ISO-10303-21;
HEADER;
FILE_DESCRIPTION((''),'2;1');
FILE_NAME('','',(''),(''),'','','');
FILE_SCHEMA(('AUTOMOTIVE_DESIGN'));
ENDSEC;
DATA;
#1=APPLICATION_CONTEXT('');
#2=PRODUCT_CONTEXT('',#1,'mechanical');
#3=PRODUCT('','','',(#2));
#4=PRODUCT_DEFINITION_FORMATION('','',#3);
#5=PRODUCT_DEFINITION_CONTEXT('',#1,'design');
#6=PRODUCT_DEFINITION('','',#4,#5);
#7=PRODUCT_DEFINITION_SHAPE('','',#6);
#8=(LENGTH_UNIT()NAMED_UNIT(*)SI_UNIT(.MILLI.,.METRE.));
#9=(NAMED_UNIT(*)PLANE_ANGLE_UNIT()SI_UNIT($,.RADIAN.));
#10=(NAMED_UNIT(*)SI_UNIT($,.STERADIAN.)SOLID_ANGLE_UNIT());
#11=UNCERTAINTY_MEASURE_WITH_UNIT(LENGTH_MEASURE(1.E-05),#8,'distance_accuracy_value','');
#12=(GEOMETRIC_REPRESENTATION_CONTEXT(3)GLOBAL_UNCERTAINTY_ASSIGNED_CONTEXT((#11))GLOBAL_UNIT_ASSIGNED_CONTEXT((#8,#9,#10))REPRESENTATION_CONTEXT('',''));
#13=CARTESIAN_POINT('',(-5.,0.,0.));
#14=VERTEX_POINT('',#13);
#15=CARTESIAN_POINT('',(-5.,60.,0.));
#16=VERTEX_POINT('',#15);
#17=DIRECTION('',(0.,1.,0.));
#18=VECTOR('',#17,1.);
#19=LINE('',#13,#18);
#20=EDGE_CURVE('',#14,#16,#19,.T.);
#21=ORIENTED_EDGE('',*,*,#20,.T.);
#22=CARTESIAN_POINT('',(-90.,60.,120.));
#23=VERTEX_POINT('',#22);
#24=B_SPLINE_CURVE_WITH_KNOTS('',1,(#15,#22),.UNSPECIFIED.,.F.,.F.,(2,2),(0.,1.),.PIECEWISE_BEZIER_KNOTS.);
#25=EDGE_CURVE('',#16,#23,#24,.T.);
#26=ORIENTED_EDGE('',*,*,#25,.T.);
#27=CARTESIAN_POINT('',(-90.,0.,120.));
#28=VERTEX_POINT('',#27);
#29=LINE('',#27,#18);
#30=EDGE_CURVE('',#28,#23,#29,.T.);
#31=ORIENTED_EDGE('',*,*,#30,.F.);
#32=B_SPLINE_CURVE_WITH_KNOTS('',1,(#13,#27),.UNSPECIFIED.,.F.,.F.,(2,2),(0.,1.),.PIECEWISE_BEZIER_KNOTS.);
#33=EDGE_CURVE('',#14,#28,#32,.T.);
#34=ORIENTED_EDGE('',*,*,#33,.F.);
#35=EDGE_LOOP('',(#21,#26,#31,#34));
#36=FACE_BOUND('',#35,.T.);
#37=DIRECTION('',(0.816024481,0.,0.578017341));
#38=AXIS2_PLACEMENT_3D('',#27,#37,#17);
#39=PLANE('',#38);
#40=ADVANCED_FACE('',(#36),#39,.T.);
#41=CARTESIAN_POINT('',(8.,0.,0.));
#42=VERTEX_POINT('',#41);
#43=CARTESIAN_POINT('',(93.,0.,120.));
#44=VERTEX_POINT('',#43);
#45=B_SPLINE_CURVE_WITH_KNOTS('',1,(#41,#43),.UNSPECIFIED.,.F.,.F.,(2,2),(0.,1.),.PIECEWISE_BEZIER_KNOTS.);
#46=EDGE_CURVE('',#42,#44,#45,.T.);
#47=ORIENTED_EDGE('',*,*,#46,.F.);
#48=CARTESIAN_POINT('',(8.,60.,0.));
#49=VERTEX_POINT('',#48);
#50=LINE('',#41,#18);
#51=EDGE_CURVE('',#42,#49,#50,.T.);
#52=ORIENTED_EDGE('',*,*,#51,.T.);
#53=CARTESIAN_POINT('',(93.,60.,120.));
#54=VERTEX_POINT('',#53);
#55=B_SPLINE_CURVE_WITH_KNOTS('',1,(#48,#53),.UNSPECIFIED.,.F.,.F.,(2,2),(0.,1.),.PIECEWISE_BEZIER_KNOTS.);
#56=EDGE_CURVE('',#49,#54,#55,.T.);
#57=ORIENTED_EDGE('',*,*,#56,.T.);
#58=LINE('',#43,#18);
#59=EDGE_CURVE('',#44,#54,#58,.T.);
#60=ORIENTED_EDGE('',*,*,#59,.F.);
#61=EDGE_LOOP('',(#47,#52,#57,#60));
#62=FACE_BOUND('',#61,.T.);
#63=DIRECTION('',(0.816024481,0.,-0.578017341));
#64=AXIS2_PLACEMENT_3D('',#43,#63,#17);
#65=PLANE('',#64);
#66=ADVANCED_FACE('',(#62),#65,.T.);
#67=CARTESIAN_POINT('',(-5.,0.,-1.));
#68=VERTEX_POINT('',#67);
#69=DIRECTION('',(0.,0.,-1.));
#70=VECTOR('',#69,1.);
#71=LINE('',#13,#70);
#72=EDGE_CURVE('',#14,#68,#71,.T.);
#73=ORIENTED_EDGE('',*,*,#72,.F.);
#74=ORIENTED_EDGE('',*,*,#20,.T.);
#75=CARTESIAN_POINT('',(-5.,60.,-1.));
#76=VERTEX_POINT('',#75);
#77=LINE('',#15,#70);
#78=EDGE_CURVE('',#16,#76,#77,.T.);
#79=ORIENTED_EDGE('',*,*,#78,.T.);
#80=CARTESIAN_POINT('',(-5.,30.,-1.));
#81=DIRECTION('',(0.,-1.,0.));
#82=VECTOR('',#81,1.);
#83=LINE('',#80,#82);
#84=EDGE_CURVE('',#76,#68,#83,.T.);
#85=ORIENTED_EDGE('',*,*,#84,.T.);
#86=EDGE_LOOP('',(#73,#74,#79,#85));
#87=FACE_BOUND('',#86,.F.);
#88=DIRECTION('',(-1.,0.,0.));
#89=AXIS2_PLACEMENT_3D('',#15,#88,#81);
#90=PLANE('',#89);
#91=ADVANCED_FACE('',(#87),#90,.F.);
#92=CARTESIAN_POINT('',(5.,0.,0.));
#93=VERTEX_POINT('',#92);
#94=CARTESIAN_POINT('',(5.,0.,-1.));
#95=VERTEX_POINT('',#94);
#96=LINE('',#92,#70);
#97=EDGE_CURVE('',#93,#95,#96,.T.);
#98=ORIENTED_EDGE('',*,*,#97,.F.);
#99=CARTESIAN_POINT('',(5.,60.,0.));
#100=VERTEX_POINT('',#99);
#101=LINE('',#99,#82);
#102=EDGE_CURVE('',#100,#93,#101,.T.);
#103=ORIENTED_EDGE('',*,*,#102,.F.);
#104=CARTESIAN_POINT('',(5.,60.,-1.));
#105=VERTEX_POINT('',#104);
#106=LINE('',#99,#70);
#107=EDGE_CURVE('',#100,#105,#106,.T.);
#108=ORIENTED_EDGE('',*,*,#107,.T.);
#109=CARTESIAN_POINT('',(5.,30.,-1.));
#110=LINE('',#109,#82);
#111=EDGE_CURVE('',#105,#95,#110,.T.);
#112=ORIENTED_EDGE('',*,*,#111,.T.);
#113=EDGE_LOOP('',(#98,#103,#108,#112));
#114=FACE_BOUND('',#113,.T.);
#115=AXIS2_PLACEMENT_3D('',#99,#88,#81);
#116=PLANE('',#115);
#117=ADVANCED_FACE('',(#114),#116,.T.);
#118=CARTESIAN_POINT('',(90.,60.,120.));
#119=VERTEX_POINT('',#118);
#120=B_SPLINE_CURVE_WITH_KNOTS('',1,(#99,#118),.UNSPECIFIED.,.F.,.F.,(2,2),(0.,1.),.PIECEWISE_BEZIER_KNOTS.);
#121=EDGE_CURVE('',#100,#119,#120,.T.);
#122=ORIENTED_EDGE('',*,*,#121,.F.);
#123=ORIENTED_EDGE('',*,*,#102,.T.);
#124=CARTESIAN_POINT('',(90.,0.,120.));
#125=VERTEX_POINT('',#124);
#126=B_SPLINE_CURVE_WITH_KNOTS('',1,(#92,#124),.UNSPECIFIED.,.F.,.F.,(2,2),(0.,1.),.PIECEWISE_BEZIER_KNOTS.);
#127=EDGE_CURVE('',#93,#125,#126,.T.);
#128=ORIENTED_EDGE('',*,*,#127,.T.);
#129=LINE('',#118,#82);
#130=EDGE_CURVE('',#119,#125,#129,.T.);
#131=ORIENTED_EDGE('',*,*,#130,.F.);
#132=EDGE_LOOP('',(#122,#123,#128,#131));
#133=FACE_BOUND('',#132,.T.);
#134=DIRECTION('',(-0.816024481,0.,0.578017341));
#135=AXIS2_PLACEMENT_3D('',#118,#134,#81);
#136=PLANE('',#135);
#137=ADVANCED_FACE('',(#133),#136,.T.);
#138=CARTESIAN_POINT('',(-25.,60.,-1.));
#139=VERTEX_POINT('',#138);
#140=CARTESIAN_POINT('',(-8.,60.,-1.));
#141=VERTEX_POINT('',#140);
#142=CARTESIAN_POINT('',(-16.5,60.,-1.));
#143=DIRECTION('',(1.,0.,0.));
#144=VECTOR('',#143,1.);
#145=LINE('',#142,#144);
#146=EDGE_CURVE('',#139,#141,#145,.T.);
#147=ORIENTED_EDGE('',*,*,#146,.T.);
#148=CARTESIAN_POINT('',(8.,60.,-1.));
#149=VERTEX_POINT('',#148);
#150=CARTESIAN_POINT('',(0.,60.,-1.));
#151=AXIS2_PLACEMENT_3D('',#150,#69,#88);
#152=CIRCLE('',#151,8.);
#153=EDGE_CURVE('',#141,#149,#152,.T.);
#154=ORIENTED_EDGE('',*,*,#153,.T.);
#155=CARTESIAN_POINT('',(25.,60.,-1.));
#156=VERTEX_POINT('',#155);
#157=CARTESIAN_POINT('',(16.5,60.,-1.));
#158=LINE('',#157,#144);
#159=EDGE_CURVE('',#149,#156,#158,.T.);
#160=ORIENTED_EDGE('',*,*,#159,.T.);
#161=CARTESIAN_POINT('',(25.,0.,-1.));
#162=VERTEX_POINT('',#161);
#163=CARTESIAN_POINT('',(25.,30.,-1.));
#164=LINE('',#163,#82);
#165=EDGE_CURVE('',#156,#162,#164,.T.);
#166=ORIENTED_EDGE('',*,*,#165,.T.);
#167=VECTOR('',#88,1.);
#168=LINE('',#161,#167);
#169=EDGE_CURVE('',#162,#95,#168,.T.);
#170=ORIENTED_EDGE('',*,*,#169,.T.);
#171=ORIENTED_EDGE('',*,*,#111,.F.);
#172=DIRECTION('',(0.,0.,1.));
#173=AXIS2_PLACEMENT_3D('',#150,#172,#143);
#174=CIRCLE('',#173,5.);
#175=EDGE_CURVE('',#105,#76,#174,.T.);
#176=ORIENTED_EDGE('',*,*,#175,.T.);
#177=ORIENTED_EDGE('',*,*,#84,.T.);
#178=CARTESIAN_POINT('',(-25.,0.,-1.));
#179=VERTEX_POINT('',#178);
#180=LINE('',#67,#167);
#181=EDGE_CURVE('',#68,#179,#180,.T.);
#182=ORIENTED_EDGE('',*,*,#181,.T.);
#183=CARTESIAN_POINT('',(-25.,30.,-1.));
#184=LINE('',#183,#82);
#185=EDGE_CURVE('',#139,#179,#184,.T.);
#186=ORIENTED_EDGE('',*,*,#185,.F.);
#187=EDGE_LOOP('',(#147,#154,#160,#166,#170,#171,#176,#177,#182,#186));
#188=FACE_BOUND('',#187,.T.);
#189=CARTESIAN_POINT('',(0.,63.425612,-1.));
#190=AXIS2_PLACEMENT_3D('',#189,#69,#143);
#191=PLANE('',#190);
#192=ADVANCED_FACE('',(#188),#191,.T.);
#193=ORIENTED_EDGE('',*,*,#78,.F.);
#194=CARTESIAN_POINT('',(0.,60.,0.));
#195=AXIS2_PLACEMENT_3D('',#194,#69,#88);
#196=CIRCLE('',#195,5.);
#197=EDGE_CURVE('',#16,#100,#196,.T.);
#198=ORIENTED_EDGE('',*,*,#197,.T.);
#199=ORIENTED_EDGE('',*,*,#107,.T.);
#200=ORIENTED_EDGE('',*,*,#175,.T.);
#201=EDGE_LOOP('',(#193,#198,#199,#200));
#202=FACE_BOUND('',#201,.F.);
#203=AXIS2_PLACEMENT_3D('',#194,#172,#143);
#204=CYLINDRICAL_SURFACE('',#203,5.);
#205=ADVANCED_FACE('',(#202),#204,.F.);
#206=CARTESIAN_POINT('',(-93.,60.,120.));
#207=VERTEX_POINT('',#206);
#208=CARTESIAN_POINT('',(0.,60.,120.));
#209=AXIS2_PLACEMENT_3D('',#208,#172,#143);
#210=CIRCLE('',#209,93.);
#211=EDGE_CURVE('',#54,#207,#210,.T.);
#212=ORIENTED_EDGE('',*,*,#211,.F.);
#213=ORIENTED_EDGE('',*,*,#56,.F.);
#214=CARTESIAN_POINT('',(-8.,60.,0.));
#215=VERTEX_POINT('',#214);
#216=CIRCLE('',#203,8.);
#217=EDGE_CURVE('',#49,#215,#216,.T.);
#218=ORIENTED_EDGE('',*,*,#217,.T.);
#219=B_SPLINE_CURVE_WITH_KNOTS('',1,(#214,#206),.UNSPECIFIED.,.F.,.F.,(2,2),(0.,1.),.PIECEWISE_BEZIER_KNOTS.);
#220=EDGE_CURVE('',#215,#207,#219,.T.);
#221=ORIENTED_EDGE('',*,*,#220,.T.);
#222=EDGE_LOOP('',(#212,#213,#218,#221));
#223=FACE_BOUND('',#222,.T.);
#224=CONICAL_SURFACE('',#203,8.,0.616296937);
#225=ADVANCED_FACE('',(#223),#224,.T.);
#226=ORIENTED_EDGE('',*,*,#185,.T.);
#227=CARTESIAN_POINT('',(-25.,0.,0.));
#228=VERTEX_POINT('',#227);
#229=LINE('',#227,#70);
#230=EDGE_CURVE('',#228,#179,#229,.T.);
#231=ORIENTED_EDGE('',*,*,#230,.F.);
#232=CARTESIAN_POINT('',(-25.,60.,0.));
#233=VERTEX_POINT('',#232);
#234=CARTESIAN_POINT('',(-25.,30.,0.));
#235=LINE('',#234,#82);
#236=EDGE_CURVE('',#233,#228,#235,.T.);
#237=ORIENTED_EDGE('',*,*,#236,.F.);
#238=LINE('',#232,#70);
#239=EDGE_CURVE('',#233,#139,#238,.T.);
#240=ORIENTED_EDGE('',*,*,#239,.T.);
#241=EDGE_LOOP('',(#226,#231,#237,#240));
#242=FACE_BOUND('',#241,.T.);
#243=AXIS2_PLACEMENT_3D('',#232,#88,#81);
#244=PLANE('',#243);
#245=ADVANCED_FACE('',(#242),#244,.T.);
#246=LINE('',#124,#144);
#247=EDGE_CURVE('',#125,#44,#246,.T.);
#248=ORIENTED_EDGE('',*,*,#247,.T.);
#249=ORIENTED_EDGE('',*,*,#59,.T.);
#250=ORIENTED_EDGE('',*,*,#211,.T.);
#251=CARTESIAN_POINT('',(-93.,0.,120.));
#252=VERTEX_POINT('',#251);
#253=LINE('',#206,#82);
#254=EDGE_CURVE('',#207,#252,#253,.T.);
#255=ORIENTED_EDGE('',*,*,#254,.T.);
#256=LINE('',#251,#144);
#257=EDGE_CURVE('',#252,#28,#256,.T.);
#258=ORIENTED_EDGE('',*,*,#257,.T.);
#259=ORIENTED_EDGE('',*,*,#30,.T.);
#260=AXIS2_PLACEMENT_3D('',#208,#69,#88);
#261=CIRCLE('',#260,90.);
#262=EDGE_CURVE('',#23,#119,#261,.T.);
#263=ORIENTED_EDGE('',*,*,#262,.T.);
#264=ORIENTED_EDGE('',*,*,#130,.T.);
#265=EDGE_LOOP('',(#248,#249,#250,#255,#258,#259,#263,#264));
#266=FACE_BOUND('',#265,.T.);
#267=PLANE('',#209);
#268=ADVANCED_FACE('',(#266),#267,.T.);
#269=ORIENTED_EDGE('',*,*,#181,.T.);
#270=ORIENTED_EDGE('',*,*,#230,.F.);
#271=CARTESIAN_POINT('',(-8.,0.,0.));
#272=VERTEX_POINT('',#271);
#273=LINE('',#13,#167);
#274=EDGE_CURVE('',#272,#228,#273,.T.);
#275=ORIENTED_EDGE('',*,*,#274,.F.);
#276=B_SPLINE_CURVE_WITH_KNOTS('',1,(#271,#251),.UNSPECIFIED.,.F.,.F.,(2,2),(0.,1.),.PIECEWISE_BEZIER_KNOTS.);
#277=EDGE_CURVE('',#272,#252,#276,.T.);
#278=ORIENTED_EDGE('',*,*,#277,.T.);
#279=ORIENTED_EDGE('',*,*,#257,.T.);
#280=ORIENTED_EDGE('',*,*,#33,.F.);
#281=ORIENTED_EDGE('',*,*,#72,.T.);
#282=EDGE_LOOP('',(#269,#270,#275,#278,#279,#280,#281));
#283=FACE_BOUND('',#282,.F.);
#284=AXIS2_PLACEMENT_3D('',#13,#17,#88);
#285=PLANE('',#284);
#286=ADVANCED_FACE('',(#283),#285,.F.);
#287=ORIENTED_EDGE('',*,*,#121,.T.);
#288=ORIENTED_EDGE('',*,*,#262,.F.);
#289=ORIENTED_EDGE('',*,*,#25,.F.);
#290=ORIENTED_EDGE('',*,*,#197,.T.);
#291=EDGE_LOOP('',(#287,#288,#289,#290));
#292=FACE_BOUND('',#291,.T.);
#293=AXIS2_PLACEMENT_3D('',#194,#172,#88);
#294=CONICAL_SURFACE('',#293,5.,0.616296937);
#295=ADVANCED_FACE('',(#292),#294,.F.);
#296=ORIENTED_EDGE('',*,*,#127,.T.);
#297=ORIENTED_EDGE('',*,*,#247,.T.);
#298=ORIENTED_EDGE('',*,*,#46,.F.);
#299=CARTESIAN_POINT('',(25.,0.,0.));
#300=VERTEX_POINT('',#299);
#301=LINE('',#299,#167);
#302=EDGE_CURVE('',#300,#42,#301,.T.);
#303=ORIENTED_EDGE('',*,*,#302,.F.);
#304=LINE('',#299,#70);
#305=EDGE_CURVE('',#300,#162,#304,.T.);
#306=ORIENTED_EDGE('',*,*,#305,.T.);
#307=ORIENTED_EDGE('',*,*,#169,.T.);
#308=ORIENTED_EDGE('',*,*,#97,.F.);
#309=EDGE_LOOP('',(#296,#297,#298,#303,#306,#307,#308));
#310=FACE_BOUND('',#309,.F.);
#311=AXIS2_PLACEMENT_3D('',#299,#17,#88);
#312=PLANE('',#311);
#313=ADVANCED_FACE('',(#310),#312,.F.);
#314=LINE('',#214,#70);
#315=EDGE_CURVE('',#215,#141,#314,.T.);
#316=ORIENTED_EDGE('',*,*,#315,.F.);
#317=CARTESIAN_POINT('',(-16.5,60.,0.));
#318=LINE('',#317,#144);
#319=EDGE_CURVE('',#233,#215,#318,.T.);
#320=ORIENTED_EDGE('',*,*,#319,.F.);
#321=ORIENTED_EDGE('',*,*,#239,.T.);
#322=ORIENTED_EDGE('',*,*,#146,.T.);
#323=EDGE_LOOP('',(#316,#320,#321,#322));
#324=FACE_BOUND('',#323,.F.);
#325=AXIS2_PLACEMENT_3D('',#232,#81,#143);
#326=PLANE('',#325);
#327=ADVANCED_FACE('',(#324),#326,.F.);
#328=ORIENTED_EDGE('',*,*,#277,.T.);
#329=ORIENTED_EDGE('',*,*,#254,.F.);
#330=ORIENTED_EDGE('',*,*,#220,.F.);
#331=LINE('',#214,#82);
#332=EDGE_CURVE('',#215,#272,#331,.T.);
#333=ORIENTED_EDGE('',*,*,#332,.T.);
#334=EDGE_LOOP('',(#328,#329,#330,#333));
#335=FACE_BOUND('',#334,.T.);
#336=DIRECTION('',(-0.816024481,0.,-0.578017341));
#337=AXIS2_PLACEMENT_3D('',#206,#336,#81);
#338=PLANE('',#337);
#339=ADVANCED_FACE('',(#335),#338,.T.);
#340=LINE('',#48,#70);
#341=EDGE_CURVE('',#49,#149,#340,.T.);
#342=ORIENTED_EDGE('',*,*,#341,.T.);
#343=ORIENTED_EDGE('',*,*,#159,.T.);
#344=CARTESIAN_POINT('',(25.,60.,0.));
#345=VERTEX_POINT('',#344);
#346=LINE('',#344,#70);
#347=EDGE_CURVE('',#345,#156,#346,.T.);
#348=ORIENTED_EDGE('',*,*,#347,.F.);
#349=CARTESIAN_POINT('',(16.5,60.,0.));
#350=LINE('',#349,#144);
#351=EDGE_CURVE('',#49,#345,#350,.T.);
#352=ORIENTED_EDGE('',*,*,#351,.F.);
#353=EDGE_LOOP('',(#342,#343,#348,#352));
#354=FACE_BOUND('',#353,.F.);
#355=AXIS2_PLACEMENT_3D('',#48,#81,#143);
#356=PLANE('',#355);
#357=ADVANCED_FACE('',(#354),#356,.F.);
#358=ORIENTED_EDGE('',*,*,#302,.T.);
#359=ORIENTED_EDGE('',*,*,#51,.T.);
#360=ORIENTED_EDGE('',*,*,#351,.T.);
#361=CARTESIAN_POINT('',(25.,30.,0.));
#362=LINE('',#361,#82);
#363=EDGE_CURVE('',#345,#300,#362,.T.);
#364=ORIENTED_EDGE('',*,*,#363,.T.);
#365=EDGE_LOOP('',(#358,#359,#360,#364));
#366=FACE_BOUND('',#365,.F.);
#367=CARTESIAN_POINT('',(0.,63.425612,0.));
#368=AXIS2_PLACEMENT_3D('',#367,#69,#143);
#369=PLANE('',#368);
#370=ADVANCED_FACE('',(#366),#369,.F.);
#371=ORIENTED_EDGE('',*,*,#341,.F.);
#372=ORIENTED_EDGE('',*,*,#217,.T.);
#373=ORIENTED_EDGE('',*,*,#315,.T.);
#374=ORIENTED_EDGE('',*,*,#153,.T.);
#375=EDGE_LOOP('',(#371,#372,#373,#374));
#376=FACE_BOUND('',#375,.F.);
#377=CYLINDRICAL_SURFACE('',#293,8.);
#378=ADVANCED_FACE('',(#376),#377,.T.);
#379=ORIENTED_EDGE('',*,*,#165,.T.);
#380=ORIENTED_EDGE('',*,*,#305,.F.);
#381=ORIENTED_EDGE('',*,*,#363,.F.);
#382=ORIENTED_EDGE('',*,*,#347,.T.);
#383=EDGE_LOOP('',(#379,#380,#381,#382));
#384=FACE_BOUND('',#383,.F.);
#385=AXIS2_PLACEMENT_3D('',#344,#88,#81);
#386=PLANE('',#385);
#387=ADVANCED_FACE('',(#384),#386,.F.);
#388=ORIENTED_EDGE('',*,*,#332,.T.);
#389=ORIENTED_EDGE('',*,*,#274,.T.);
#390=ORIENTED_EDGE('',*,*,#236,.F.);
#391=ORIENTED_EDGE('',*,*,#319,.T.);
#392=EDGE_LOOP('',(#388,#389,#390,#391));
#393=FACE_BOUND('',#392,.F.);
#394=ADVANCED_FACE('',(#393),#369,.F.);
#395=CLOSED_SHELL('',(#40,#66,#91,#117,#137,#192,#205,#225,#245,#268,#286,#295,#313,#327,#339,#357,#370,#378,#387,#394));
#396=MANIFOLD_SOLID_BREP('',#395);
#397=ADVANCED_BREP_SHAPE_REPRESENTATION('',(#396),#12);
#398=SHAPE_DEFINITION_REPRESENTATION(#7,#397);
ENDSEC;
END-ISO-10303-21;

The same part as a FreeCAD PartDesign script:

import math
import FreeCAD as App
import Part
import Sketcher

V = App.Vector
Q = App.Units.Quantity

doc = App.newDocument("Part")
body = doc.addObject("PartDesign::Body", "Body")

# Sketch on XY plane
sketch1 = body.newObject("Sketcher::SketchObject", "Sketch")
sketch1.AttachmentSupport = (doc.getObject("XY_Plane"), [""])
sketch1.MapMode = "FlatFace"
sketch1.addGeometry([
    Part.LineSegment(V(5, 60, 0), V(5, 0, 0)),  # 0
    Part.LineSegment(V(5, 0, 0), V(8, 0, 0)),  # 1
    Part.LineSegment(V(8, 0, 0), V(8, 60, 0)),  # 2
    Part.ArcOfCircle(Part.Circle(V(0, 60, 0), V(0, 0, 1), 8), math.radians(0), math.radians(180)),  # 3
    Part.LineSegment(V(-8, 60, 0), V(-8, 0, 0)),  # 4
    Part.LineSegment(V(-8, 0, 0), V(-5, 0, 0)),  # 5
    Part.LineSegment(V(-5, 0, 0), V(-5, 60, 0)),  # 6
    Part.ArcOfCircle(Part.Circle(V(0, 60, 0), V(0, 0, 1), 5), math.radians(0), math.radians(180)),  # 7
], False)
sketch1.addConstraint([
    Sketcher.Constraint("Coincident", 0, 2, 1, 1),
    Sketcher.Constraint("Coincident", 1, 2, 2, 1),
    Sketcher.Constraint("Tangent", 2, 2, 3, 1),
    Sketcher.Constraint("Tangent", 3, 2, 4, 1),
    Sketcher.Constraint("Coincident", 4, 2, 5, 1),
    Sketcher.Constraint("Coincident", 5, 2, 6, 1),
    Sketcher.Constraint("Tangent", 6, 2, 7, 2),
    Sketcher.Constraint("Tangent", 7, 1, 0, 1),
    Sketcher.Constraint("Vertical", 0),
    Sketcher.Constraint("Horizontal", 1),
    Sketcher.Constraint("Vertical", 2),
    Sketcher.Constraint("Vertical", 4),
    Sketcher.Constraint("Horizontal", 5),
    Sketcher.Constraint("Vertical", 6),
    Sketcher.Constraint("Coincident", 7, 3, 3, 3),
    Sketcher.Constraint("Symmetric", 1, 2, 4, 2, -1, 1),
    Sketcher.Constraint("PointOnObject", 0, 2, -1),
    Sketcher.Constraint("Radius", 3, Q("8 mm")),
    Sketcher.Constraint("Radius", 7, Q("5 mm")),
    Sketcher.Constraint("DistanceY", 0, 2, 0, 1, Q("60 mm")),
])

# Sketch on XY plane
sketch2 = body.newObject("Sketcher::SketchObject", "Sketch001")
sketch2.AttachmentSupport = (doc.getObject("XY_Plane"), [""])
sketch2.MapMode = "FlatFace"
sketch2.AttachmentOffset = App.Placement(V(0, 0, 120), App.Rotation())
sketch2.addGeometry([
    Part.LineSegment(V(-90, 0, 0), V(-90, 60, 0)),  # 0
    Part.ArcOfCircle(Part.Circle(V(0, 60, 0), V(0, 0, 1), 90), math.radians(0), math.radians(180)),  # 1
    Part.LineSegment(V(90, 60, 0), V(90, 0, 0)),  # 2
    Part.LineSegment(V(90, 0, 0), V(93, 0, 0)),  # 3
    Part.LineSegment(V(93, 0, 0), V(93, 60, 0)),  # 4
    Part.ArcOfCircle(Part.Circle(V(0, 60, 0), V(0, 0, 1), 93), math.radians(0), math.radians(180)),  # 5
    Part.LineSegment(V(-93, 60, 0), V(-93, 0, 0)),  # 6
    Part.LineSegment(V(-93, 0, 0), V(-90, 0, 0)),  # 7
], False)
sketch2.addConstraint([
    Sketcher.Constraint("Tangent", 0, 2, 1, 2),
    Sketcher.Constraint("Tangent", 1, 1, 2, 1),
    Sketcher.Constraint("Coincident", 2, 2, 3, 1),
    Sketcher.Constraint("Coincident", 3, 2, 4, 1),
    Sketcher.Constraint("Tangent", 4, 2, 5, 1),
    Sketcher.Constraint("Tangent", 5, 2, 6, 1),
    Sketcher.Constraint("Coincident", 6, 2, 7, 1),
    Sketcher.Constraint("Coincident", 7, 2, 0, 1),
    Sketcher.Constraint("Vertical", 0),
    Sketcher.Constraint("Vertical", 2),
    Sketcher.Constraint("Horizontal", 3),
    Sketcher.Constraint("Vertical", 4),
    Sketcher.Constraint("Vertical", 6),
    Sketcher.Constraint("Horizontal", 7),
    Sketcher.Constraint("Coincident", 5, 3, 1, 3),
    Sketcher.Constraint("Symmetric", 3, 2, 6, 2, -1, 1),
    Sketcher.Constraint("PointOnObject", 2, 2, -1),
    Sketcher.Constraint("Radius", 1, Q("90 mm")),
    Sketcher.Constraint("Radius", 5, Q("93 mm")),
    Sketcher.Constraint("DistanceY", 0, 1, 0, 2, Q("60 mm")),
])

additiveloft = body.newObject("PartDesign::AdditiveLoft", "AdditiveLoft")
additiveloft.Profile = sketch1
additiveloft.Sections = [sketch2]

# Sketch on XY plane
sketch3 = body.newObject("Sketcher::SketchObject", "Sketch002")
sketch3.AttachmentSupport = (doc.getObject("XY_Plane"), [""])
sketch3.MapMode = "FlatFace"
sketch3.addGeometry([
    Part.ArcOfCircle(Part.Circle(V(0, 60, 0), V(0, 0, 1), 5), math.radians(0), math.radians(180)),  # 0
    Part.LineSegment(V(-5, 60, 0), V(-5, 0, 0)),  # 1
    Part.LineSegment(V(-5, 0, 0), V(-25, 0, 0)),  # 2
    Part.LineSegment(V(-25, 0, 0), V(-25, 60, 0)),  # 3
    Part.LineSegment(V(-25, 60, 0), V(-8, 60, 0)),  # 4
    Part.ArcOfCircle(Part.Circle(V(0, 60, 0), V(0, 0, 1), 8), math.radians(0), math.radians(180)),  # 5
    Part.LineSegment(V(8, 60, 0), V(25, 60, 0)),  # 6
    Part.LineSegment(V(25, 60, 0), V(25, 0, 0)),  # 7
    Part.LineSegment(V(25, 0, 0), V(5, 0, 0)),  # 8
    Part.LineSegment(V(5, 0, 0), V(5, 60, 0)),  # 9
], False)
sketch3.addConstraint([
    Sketcher.Constraint("Tangent", 0, 2, 1, 1),
    Sketcher.Constraint("Coincident", 1, 2, 2, 1),
    Sketcher.Constraint("Coincident", 2, 2, 3, 1),
    Sketcher.Constraint("Coincident", 3, 2, 4, 1),
    Sketcher.Constraint("Coincident", 4, 2, 5, 2),
    Sketcher.Constraint("Coincident", 5, 1, 6, 1),
    Sketcher.Constraint("Coincident", 6, 2, 7, 1),
    Sketcher.Constraint("Coincident", 7, 2, 8, 1),
    Sketcher.Constraint("Coincident", 8, 2, 9, 1),
    Sketcher.Constraint("Tangent", 9, 2, 0, 1),
    Sketcher.Constraint("Vertical", 1),
    Sketcher.Constraint("Horizontal", 2),
    Sketcher.Constraint("Vertical", 3),
    Sketcher.Constraint("Horizontal", 4),
    Sketcher.Constraint("Horizontal", 6),
    Sketcher.Constraint("Vertical", 7),
    Sketcher.Constraint("Horizontal", 8),
    Sketcher.Constraint("Vertical", 9),
    Sketcher.Constraint("Coincident", 5, 3, 0, 3),
    Sketcher.Constraint("Symmetric", 2, 2, 7, 2, -1, 1),
    Sketcher.Constraint("Symmetric", 4, 2, 5, 1, -2),
    Sketcher.Constraint("PointOnObject", 1, 2, -1),
    Sketcher.Constraint("Horizontal", 0, 2, 3, 2),
    Sketcher.Constraint("Radius", 0, Q("5 mm")),
    Sketcher.Constraint("Radius", 5, Q("8 mm")),
    Sketcher.Constraint("DistanceX", 2, 2, 2, 1, Q("20 mm")),
    Sketcher.Constraint("DistanceY", 1, 2, 1, 1, Q("60 mm")),
])
pad1 = body.newObject("PartDesign::Pad", "Pad")
pad1.Profile = sketch3
pad1.Length = 1
pad1.Reversed = True

doc.recompute()
